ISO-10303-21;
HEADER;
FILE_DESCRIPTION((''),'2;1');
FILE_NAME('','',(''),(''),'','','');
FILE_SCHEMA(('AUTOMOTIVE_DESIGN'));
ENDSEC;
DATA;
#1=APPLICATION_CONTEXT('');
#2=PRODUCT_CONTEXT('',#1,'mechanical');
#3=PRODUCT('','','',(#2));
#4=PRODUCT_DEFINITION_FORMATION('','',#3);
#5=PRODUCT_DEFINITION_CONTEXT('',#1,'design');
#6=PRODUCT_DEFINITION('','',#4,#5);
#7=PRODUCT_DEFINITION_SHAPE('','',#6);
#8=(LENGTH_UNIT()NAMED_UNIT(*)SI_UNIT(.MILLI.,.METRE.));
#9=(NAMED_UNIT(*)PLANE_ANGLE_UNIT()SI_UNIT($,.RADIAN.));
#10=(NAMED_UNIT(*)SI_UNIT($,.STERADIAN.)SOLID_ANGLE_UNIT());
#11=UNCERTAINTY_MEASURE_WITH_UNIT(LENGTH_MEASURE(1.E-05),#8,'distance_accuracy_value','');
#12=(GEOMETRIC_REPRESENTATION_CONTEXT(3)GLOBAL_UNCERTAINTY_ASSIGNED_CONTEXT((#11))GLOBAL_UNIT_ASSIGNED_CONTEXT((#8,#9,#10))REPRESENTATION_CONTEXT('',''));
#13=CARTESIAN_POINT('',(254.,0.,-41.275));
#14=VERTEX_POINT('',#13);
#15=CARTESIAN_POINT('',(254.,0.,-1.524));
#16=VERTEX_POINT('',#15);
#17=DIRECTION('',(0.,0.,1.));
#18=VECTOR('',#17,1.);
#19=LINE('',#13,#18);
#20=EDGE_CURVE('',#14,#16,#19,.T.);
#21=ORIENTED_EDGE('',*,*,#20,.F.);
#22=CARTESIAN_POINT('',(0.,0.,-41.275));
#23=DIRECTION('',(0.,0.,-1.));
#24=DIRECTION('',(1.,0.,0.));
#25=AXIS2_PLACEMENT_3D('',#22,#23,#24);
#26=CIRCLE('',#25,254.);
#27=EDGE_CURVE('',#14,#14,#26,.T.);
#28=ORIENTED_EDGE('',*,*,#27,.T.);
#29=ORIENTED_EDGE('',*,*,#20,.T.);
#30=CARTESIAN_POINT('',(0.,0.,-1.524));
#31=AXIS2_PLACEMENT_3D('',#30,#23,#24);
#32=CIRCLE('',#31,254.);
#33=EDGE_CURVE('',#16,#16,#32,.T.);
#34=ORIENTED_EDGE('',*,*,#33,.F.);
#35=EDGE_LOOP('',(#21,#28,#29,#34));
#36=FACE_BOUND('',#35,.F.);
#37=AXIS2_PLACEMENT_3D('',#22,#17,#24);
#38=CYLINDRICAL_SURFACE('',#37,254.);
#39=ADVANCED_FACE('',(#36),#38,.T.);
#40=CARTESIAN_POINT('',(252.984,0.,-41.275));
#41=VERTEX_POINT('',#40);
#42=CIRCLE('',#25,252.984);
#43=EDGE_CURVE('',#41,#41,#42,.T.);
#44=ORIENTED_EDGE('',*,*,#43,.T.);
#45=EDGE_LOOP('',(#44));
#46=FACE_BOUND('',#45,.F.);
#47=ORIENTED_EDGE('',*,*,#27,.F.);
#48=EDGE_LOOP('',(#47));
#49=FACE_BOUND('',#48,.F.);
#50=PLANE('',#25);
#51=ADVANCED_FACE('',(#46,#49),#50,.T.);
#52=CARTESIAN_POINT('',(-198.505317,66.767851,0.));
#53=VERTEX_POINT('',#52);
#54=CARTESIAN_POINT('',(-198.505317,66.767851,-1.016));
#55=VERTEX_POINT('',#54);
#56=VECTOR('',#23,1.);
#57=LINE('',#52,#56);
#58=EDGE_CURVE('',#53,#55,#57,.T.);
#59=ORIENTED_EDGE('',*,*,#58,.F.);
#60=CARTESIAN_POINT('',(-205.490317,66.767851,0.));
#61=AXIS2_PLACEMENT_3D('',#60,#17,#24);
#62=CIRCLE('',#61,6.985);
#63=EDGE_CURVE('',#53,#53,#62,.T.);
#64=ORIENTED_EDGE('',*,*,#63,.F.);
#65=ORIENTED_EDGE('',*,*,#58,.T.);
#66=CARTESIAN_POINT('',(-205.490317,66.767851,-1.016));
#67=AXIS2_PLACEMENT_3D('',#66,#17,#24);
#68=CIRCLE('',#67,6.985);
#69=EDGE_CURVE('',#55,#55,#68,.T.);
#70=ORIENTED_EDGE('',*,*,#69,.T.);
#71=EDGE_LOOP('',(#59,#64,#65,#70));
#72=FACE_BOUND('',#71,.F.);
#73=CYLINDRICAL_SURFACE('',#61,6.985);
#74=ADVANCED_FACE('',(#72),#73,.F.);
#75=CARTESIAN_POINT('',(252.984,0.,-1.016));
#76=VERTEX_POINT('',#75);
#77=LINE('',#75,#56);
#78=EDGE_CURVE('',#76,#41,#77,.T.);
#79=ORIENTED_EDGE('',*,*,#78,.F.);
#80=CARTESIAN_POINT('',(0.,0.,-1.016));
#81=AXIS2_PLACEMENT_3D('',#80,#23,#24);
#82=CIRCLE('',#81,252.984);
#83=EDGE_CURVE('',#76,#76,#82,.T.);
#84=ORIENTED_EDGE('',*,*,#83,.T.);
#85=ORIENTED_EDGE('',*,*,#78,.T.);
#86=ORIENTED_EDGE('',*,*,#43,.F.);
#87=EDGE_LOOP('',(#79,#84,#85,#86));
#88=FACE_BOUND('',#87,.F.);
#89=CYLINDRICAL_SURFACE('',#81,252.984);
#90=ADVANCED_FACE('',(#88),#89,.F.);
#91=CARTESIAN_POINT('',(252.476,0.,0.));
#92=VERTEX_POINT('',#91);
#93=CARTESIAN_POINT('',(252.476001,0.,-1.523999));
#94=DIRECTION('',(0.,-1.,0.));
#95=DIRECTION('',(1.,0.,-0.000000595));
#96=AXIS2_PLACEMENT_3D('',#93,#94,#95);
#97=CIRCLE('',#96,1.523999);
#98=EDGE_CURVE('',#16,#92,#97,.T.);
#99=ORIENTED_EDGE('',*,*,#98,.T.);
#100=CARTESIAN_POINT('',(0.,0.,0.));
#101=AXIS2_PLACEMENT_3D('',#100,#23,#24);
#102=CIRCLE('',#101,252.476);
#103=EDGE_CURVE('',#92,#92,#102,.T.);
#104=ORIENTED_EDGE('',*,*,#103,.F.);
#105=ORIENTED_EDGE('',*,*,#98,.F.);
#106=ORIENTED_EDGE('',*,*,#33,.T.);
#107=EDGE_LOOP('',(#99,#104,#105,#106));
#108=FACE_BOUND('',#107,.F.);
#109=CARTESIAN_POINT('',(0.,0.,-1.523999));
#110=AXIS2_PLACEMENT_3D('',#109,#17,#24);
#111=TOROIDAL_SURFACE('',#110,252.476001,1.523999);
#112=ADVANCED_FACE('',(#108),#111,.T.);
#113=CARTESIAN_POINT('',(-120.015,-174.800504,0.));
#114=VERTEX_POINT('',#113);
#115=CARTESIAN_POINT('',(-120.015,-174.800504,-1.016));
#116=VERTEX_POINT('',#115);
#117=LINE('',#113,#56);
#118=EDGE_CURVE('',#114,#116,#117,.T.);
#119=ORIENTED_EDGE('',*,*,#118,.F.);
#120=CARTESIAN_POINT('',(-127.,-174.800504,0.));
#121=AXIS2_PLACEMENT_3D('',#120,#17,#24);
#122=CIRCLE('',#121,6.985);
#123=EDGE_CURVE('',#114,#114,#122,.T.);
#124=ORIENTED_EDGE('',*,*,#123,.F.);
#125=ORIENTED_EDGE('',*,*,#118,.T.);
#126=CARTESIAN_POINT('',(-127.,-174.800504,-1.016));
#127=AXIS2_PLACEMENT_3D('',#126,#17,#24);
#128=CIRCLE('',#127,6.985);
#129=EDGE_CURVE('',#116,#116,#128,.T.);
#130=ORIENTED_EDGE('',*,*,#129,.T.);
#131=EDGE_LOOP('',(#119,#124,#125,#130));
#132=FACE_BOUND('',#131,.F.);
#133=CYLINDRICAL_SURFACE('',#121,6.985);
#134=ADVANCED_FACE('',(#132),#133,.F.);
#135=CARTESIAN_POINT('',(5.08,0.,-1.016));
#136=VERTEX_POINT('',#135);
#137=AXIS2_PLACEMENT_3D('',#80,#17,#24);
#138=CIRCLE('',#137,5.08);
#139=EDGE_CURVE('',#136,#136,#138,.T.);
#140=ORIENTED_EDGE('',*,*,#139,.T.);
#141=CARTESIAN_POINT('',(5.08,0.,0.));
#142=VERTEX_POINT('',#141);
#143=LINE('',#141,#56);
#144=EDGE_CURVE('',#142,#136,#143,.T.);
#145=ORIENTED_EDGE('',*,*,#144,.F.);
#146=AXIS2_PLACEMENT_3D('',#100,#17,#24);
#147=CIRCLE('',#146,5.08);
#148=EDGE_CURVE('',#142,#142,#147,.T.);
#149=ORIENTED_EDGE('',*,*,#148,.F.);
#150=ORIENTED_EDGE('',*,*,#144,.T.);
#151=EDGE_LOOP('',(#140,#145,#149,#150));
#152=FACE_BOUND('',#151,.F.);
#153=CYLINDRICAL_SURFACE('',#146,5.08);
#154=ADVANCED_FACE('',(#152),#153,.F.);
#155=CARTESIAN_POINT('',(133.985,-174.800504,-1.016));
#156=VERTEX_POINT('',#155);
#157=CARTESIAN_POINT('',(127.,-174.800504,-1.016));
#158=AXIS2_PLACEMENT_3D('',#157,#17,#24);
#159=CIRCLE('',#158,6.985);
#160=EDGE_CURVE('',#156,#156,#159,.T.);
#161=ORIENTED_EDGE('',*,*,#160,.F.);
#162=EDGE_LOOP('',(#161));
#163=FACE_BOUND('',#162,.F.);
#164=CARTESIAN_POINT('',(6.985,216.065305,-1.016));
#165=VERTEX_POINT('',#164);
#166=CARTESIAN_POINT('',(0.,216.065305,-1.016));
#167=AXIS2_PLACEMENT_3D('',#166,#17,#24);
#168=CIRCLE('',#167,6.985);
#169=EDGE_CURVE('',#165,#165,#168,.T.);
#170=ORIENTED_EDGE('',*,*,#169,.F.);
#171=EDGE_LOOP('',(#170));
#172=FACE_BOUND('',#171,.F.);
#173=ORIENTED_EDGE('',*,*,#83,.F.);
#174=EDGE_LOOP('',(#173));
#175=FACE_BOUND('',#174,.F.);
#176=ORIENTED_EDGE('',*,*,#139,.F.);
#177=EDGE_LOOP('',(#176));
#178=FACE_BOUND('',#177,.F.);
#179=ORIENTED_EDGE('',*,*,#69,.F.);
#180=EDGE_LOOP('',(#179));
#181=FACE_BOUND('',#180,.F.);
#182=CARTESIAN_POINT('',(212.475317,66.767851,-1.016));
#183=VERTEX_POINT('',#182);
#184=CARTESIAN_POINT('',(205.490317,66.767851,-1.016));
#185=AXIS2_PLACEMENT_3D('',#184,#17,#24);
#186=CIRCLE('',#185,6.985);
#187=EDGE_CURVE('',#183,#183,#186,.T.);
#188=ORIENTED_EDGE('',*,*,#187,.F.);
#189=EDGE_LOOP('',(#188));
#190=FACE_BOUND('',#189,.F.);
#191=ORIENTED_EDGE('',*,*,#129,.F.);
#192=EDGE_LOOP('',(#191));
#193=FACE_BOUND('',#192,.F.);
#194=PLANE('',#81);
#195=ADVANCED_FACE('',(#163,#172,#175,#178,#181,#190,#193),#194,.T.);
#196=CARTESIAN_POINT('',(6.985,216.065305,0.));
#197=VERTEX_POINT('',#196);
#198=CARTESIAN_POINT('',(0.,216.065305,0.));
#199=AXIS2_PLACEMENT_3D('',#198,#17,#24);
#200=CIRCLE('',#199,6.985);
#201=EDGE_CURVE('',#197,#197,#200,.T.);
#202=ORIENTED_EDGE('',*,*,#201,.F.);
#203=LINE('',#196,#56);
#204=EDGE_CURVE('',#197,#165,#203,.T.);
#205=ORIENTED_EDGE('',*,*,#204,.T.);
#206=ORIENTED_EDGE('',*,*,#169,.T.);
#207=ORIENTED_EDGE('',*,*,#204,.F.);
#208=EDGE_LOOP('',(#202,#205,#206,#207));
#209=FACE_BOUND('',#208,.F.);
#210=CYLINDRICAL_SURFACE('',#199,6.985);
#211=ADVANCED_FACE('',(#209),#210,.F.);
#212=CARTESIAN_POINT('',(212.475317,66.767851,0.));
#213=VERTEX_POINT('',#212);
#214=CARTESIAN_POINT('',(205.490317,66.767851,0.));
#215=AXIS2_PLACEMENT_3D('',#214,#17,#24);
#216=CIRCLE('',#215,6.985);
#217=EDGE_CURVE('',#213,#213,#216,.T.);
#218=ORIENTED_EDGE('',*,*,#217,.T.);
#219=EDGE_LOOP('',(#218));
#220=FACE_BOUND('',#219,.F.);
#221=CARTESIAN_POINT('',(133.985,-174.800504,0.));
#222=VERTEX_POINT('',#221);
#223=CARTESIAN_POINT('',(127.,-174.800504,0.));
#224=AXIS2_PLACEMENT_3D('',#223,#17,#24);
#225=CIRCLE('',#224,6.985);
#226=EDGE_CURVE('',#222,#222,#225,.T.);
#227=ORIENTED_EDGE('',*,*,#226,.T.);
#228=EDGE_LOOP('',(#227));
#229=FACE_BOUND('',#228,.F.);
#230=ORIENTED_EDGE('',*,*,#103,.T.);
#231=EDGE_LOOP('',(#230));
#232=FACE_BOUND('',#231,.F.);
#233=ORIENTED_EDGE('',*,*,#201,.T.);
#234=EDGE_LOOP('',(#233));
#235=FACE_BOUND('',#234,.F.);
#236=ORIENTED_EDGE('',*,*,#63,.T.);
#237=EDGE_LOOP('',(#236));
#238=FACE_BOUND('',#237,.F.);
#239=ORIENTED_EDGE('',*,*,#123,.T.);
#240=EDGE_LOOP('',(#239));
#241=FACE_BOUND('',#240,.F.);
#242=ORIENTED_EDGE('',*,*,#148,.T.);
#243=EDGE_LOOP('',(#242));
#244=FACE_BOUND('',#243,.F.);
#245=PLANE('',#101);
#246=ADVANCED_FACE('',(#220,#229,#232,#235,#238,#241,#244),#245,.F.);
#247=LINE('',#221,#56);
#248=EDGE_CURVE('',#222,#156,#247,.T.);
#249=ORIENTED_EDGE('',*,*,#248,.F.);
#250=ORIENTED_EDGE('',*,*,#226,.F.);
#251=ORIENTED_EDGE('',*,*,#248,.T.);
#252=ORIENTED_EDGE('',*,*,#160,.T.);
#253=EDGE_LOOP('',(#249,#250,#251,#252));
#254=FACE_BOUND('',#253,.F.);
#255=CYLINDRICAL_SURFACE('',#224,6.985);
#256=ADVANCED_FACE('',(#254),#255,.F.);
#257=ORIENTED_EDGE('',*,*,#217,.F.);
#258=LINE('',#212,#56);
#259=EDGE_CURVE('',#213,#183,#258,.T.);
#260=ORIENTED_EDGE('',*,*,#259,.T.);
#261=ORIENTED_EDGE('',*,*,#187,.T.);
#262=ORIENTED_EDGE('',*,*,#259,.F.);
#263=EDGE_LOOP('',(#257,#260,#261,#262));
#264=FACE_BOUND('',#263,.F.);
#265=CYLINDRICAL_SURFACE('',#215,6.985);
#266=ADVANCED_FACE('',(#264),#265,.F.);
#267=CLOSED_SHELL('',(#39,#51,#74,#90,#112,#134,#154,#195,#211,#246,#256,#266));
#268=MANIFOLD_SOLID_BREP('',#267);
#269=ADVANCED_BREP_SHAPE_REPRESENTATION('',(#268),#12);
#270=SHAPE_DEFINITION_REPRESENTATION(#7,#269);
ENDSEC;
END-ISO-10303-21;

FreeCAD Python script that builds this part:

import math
import FreeCAD as App
import Part
import Sketcher

V = App.Vector
Q = App.Units.Quantity

doc = App.newDocument("Part")
body = doc.addObject("PartDesign::Body", "Body")

sketch1 = body.newObject("Sketcher::SketchObject", "Sketch")
sketch1.AttachmentSupport = (doc.getObject("XZ_Plane"), [""])
sketch1.MapMode = "FlatFace"
sketch1.addGeometry(Part.LineSegment(V(252.5, 0, 0), V(0, 0, 0)), False)
sketch1.addGeometry(Part.LineSegment(V(0, 0, 0), V(0, -1, 0)), False)
sketch1.addGeometry(Part.LineSegment(V(0, -1, 0), V(253, -1, 0)), False)
sketch1.addGeometry(Part.LineSegment(V(253, -1, 0), V(253, -41.3, 0)), False)
sketch1.addGeometry(Part.LineSegment(V(253, -41.3, 0), V(254, -41.3, 0)), False)
sketch1.addGeometry(Part.LineSegment(V(254, -41.3, 0), V(254, -1.5, 0)), False)
sketch1.addGeometry(Part.ArcOfCircle(Part.Circle(V(252.5, -1.5, 0), V(0, 0, 1), 1.5), math.radians(0), math.radians(90)), False)
sketch1.addConstraint(Sketcher.Constraint("Coincident", 0, 2, 1, 1))
sketch1.addConstraint(Sketcher.Constraint("Coincident", 1, 2, 2, 1))
sketch1.addConstraint(Sketcher.Constraint("Coincident", 2, 2, 3, 1))
sketch1.addConstraint(Sketcher.Constraint("Coincident", 3, 2, 4, 1))
sketch1.addConstraint(Sketcher.Constraint("Coincident", 4, 2, 5, 1))
sketch1.addConstraint(Sketcher.Constraint("Tangent", 5, 2, 6, 1))
sketch1.addConstraint(Sketcher.Constraint("Tangent", 6, 2, 0, 1))
sketch1.addConstraint(Sketcher.Constraint("Horizontal", 0))
sketch1.addConstraint(Sketcher.Constraint("Vertical", 1))
sketch1.addConstraint(Sketcher.Constraint("Horizontal", 2))
sketch1.addConstraint(Sketcher.Constraint("Vertical", 3))
sketch1.addConstraint(Sketcher.Constraint("Horizontal", 4))
sketch1.addConstraint(Sketcher.Constraint("Vertical", 5))
sketch1.addConstraint(Sketcher.Constraint("Coincident", 0, 2, -1, 1))
sketch1.addConstraint(Sketcher.Constraint("Equal", 4, 1))
sketch1.addConstraint(Sketcher.Constraint("Radius", 6, Q("0.06 in")))
sketch1.addConstraint(Sketcher.Constraint("DistanceX", -1, 1, 4, 2, Q("10 in")))
sketch1.addConstraint(Sketcher.Constraint("DistanceX", 2, 1, 2, 2, Q("9.96 in")))
sketch1.addConstraint(Sketcher.Constraint("DistanceY", 3, 2, 3, 1, Q("1.585 in")))
revolution = body.newObject("PartDesign::Revolution", "Revolution")
revolution.Profile = sketch1
revolution.ReferenceAxis = (sketch1, ["V_Axis"])
revolution.Angle = 360

sketch2 = body.newObject("Sketcher::SketchObject", "Sketch001")
sketch2.AttachmentSupport = (doc.getObject("XY_Plane"), [""])
sketch2.MapMode = "FlatFace"
sketch2.addGeometry(Part.Circle(V(205, 67, 0), V(0, 0, 1), 7), False)
sketch2.addGeometry(Part.Circle(V(0, 216, 0), V(0, 0, 1), 7), False)
sketch2.addGeometry(Part.Circle(V(-205, 67, 0), V(0, 0, 1), 7), False)
sketch2.addGeometry(Part.Circle(V(-127, -175, 0), V(0, 0, 1), 7), False)
sketch2.addGeometry(Part.Circle(V(127, -175, 0), V(0, 0, 1), 7), False)
sketch2.addGeometry(Part.Circle(V(0, 0, 0), V(0, 0, 1), 5), False)
sketch2.addConstraint(Sketcher.Constraint("Coincident", 5, 3, -1, 1))
sketch2.addConstraint(Sketcher.Constraint("Equal", 0, 1))
sketch2.addConstraint(Sketcher.Constraint("Equal", 1, 2))
sketch2.addConstraint(Sketcher.Constraint("Equal", 2, 3))
sketch2.addConstraint(Sketcher.Constraint("Equal", 3, 4))
sketch2.addConstraint(Sketcher.Constraint("Symmetric", 0, 3, 2, 3, -2))
sketch2.addConstraint(Sketcher.Constraint("Symmetric", 3, 3, 4, 3, -2))
sketch2.addConstraint(Sketcher.Constraint("PointOnObject", 1, 3, -2))
sketch2.addConstraint(Sketcher.Constraint("Diameter", 5, Q("0.4 in")))
sketch2.addConstraint(Sketcher.Constraint("Diameter", 0, Q("0.55 in")))
sketch2.addConstraint(Sketcher.Constraint("DistanceX", 3, 3, -1, 1, Q("5 in")))
sketch2.addConstraint(Sketcher.Constraint("DistanceY", -1, 1, 0, 3, Q("66.767851 mm")))
sketch2.addConstraint(Sketcher.Constraint("DistanceY", 3, 3, 1, 3, Q("390.865809 mm")))
sketch2.addConstraint(Sketcher.Constraint("DistanceX", -1, 1, 0, 3, Q("205.490317 mm")))
sketch2.addConstraint(Sketcher.Constraint("DistanceY", -1, 1, 1, 3, Q("216.065305 mm")))
pocket1 = body.newObject("PartDesign::Pocket", "Pocket")
pocket1.Profile = sketch2
pocket1.Type = "ThroughAll"

doc.recompute()
